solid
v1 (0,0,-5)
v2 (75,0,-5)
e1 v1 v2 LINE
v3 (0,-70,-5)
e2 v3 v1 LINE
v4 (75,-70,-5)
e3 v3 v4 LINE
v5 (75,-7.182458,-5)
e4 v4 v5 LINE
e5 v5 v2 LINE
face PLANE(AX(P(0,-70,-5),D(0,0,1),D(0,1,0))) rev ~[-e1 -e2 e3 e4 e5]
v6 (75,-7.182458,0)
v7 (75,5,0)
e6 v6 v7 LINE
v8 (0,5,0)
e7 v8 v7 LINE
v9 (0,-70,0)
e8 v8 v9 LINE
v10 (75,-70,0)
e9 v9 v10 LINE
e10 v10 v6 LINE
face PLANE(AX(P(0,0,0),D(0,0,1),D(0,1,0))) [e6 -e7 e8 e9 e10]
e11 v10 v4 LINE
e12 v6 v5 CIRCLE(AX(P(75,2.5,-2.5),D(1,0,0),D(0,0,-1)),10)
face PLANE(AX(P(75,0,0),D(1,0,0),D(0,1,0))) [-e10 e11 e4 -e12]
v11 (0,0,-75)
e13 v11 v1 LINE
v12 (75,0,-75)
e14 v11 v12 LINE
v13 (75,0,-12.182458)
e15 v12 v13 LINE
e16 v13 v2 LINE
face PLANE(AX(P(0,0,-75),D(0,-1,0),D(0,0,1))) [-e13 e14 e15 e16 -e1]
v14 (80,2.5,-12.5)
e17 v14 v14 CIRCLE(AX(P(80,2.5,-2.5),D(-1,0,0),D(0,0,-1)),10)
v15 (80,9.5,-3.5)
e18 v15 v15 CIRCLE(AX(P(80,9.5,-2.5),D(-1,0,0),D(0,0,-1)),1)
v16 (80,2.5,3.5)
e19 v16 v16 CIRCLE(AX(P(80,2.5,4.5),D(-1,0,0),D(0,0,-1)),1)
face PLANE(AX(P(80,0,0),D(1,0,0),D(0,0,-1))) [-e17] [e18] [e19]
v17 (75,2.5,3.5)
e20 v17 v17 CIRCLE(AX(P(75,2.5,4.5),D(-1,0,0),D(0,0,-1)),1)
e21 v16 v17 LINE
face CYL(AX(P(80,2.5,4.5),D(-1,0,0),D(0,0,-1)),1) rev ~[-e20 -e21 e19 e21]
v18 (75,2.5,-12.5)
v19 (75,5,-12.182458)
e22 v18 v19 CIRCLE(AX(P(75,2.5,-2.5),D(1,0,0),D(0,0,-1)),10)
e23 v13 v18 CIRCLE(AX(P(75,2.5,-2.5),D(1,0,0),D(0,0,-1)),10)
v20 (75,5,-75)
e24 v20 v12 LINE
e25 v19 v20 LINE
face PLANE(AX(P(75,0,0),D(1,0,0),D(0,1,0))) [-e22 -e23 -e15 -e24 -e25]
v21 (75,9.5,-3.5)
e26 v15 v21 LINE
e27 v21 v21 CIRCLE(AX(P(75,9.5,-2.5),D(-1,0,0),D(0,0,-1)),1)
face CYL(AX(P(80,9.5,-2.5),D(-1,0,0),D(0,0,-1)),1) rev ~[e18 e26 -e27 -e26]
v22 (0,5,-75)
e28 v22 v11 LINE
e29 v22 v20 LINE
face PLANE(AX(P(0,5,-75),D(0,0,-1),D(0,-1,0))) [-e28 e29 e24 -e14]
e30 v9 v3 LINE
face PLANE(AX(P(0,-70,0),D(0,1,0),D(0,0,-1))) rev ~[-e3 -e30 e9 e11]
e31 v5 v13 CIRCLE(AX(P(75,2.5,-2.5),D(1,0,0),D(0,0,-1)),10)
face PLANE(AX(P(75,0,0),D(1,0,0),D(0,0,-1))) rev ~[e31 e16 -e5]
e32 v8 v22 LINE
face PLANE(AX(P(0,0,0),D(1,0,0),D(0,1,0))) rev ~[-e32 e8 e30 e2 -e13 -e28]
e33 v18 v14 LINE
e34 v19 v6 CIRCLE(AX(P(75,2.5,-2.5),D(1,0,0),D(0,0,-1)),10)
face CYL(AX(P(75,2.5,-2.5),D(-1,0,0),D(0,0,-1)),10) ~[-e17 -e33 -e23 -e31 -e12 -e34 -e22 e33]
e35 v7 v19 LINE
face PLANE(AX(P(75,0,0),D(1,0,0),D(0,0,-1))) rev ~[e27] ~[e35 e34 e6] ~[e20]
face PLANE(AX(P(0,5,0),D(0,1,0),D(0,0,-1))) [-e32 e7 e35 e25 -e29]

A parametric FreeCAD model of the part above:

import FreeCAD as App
import Part
import Sketcher
from FreeCAD import Vector
Q = App.Units.Quantity


def add_polygon(sketch, points):
    """Adds a closed chain of lines whose ends are joined by coincident constraints."""
    first, n = sketch.GeometryCount, len(points)
    for a, b in zip(points, points[1:] + points[:1]):
        sketch.addGeometry(Part.LineSegment(App.Vector(*a, 0), App.Vector(*b, 0)), False)
    for i in range(n):
        sketch.addConstraint(Sketcher.Constraint("Coincident", first + i, 2, first + (i + 1) % n, 1))

doc = App.newDocument("Part")
body = doc.addObject("PartDesign::Body", "Body")

# Sketch on YZ plane
sketch1 = body.newObject("Sketcher::SketchObject", "Sketch")
sketch1.AttachmentSupport = (doc.getObject("YZ_Plane"), [""])
sketch1.MapMode = "FlatFace"
add_polygon(sketch1, [(5, 0), (-70, 0), (-70, -5), (0, -5), (0, -75), (5, -75)])  # lines 0-5
sketch1.addConstraint([
    Sketcher.Constraint("Horizontal", 0),
    Sketcher.Constraint("Vertical", 1),
    Sketcher.Constraint("Horizontal", 2),
    Sketcher.Constraint("Vertical", 3),
    Sketcher.Constraint("Horizontal", 4),
    Sketcher.Constraint("Vertical", 5),
    Sketcher.Constraint("PointOnObject", 0, 2, -1),
    Sketcher.Constraint("PointOnObject", 2, 2, -2),
    Sketcher.Constraint("Equal", 4, 1),
    Sketcher.Constraint("Equal", 2, 3),
    Sketcher.Constraint("DistanceX", 0, 2, 0, 1, Q("75 mm")),
    Sketcher.Constraint("DistanceX", 4, 1, 4, 2, Q("5 mm")),
])
pad1 = body.newObject("PartDesign::Pad", "Pad")
pad1.Profile = sketch1
pad1.Length = 75

# Sketch on YZ plane
sketch2 = body.newObject("Sketcher::SketchObject", "Sketch001")
sketch2.AttachmentSupport = (doc.getObject("YZ_Plane"), [""])
sketch2.MapMode = "FlatFace"
sketch2.AttachmentOffset = App.Placement(Vector(0, 0, 75), App.Rotation())
sketch2.addGeometry(Part.Circle(Vector(2, -2, 0), Vector(0, 0, 1), 10), False)
sketch2.addConstraint([
    Sketcher.Constraint("Diameter", 0, Q("20 mm")),
    Sketcher.Constraint("DistanceX", -1, 1, 0, 3, Q("2.5 mm")),
    Sketcher.Constraint("DistanceY", 0, 3, -1, 1, Q("2.5 mm")),
])
pad2 = body.newObject("PartDesign::Pad", "Pad001")
pad2.Profile = sketch2
pad2.Length = 5

# Sketch on YZ plane
sketch3 = body.newObject("Sketcher::SketchObject", "Sketch002")
sketch3.AttachmentSupport = (doc.getObject("YZ_Plane"), [""])
sketch3.MapMode = "FlatFace"
sketch3.AttachmentOffset = App.Placement(Vector(0, 0, 80), App.Rotation())
sketch3.addGeometry([
    Part.Circle(Vector(9.5, -2.5, 0), Vector(0, 0, 1), 1),
    Part.Circle(Vector(2.5, 4.5, 0), Vector(0, 0, 1), 1),
], False)
sketch3.addConstraint([
    Sketcher.Constraint("Equal", 0, 1),
    Sketcher.Constraint("Diameter", 0, Q("2 mm")),
    Sketcher.Constraint("DistanceX", 1, 3, 0, 3, Q("7 mm")),
    Sketcher.Constraint("DistanceY", 0, 3, 1, 3, Q("7 mm")),
    Sketcher.Constraint("DistanceX", -1, 1, 0, 3, Q("9.5 mm")),
    Sketcher.Constraint("DistanceY", 0, 3, -1, 1, Q("2.5 mm")),
])
doc.recompute()
hole = body.newObject("PartDesign::Hole", "Hole")
hole.Profile = sketch3
hole.ThreadType = "None"
hole.Diameter = 2
hole.DepthType = "Dimension"
hole.Depth = 8.1
hole.DrillPoint = "Angled"
hole.DrillPointAngle = 118

doc.recompute()
